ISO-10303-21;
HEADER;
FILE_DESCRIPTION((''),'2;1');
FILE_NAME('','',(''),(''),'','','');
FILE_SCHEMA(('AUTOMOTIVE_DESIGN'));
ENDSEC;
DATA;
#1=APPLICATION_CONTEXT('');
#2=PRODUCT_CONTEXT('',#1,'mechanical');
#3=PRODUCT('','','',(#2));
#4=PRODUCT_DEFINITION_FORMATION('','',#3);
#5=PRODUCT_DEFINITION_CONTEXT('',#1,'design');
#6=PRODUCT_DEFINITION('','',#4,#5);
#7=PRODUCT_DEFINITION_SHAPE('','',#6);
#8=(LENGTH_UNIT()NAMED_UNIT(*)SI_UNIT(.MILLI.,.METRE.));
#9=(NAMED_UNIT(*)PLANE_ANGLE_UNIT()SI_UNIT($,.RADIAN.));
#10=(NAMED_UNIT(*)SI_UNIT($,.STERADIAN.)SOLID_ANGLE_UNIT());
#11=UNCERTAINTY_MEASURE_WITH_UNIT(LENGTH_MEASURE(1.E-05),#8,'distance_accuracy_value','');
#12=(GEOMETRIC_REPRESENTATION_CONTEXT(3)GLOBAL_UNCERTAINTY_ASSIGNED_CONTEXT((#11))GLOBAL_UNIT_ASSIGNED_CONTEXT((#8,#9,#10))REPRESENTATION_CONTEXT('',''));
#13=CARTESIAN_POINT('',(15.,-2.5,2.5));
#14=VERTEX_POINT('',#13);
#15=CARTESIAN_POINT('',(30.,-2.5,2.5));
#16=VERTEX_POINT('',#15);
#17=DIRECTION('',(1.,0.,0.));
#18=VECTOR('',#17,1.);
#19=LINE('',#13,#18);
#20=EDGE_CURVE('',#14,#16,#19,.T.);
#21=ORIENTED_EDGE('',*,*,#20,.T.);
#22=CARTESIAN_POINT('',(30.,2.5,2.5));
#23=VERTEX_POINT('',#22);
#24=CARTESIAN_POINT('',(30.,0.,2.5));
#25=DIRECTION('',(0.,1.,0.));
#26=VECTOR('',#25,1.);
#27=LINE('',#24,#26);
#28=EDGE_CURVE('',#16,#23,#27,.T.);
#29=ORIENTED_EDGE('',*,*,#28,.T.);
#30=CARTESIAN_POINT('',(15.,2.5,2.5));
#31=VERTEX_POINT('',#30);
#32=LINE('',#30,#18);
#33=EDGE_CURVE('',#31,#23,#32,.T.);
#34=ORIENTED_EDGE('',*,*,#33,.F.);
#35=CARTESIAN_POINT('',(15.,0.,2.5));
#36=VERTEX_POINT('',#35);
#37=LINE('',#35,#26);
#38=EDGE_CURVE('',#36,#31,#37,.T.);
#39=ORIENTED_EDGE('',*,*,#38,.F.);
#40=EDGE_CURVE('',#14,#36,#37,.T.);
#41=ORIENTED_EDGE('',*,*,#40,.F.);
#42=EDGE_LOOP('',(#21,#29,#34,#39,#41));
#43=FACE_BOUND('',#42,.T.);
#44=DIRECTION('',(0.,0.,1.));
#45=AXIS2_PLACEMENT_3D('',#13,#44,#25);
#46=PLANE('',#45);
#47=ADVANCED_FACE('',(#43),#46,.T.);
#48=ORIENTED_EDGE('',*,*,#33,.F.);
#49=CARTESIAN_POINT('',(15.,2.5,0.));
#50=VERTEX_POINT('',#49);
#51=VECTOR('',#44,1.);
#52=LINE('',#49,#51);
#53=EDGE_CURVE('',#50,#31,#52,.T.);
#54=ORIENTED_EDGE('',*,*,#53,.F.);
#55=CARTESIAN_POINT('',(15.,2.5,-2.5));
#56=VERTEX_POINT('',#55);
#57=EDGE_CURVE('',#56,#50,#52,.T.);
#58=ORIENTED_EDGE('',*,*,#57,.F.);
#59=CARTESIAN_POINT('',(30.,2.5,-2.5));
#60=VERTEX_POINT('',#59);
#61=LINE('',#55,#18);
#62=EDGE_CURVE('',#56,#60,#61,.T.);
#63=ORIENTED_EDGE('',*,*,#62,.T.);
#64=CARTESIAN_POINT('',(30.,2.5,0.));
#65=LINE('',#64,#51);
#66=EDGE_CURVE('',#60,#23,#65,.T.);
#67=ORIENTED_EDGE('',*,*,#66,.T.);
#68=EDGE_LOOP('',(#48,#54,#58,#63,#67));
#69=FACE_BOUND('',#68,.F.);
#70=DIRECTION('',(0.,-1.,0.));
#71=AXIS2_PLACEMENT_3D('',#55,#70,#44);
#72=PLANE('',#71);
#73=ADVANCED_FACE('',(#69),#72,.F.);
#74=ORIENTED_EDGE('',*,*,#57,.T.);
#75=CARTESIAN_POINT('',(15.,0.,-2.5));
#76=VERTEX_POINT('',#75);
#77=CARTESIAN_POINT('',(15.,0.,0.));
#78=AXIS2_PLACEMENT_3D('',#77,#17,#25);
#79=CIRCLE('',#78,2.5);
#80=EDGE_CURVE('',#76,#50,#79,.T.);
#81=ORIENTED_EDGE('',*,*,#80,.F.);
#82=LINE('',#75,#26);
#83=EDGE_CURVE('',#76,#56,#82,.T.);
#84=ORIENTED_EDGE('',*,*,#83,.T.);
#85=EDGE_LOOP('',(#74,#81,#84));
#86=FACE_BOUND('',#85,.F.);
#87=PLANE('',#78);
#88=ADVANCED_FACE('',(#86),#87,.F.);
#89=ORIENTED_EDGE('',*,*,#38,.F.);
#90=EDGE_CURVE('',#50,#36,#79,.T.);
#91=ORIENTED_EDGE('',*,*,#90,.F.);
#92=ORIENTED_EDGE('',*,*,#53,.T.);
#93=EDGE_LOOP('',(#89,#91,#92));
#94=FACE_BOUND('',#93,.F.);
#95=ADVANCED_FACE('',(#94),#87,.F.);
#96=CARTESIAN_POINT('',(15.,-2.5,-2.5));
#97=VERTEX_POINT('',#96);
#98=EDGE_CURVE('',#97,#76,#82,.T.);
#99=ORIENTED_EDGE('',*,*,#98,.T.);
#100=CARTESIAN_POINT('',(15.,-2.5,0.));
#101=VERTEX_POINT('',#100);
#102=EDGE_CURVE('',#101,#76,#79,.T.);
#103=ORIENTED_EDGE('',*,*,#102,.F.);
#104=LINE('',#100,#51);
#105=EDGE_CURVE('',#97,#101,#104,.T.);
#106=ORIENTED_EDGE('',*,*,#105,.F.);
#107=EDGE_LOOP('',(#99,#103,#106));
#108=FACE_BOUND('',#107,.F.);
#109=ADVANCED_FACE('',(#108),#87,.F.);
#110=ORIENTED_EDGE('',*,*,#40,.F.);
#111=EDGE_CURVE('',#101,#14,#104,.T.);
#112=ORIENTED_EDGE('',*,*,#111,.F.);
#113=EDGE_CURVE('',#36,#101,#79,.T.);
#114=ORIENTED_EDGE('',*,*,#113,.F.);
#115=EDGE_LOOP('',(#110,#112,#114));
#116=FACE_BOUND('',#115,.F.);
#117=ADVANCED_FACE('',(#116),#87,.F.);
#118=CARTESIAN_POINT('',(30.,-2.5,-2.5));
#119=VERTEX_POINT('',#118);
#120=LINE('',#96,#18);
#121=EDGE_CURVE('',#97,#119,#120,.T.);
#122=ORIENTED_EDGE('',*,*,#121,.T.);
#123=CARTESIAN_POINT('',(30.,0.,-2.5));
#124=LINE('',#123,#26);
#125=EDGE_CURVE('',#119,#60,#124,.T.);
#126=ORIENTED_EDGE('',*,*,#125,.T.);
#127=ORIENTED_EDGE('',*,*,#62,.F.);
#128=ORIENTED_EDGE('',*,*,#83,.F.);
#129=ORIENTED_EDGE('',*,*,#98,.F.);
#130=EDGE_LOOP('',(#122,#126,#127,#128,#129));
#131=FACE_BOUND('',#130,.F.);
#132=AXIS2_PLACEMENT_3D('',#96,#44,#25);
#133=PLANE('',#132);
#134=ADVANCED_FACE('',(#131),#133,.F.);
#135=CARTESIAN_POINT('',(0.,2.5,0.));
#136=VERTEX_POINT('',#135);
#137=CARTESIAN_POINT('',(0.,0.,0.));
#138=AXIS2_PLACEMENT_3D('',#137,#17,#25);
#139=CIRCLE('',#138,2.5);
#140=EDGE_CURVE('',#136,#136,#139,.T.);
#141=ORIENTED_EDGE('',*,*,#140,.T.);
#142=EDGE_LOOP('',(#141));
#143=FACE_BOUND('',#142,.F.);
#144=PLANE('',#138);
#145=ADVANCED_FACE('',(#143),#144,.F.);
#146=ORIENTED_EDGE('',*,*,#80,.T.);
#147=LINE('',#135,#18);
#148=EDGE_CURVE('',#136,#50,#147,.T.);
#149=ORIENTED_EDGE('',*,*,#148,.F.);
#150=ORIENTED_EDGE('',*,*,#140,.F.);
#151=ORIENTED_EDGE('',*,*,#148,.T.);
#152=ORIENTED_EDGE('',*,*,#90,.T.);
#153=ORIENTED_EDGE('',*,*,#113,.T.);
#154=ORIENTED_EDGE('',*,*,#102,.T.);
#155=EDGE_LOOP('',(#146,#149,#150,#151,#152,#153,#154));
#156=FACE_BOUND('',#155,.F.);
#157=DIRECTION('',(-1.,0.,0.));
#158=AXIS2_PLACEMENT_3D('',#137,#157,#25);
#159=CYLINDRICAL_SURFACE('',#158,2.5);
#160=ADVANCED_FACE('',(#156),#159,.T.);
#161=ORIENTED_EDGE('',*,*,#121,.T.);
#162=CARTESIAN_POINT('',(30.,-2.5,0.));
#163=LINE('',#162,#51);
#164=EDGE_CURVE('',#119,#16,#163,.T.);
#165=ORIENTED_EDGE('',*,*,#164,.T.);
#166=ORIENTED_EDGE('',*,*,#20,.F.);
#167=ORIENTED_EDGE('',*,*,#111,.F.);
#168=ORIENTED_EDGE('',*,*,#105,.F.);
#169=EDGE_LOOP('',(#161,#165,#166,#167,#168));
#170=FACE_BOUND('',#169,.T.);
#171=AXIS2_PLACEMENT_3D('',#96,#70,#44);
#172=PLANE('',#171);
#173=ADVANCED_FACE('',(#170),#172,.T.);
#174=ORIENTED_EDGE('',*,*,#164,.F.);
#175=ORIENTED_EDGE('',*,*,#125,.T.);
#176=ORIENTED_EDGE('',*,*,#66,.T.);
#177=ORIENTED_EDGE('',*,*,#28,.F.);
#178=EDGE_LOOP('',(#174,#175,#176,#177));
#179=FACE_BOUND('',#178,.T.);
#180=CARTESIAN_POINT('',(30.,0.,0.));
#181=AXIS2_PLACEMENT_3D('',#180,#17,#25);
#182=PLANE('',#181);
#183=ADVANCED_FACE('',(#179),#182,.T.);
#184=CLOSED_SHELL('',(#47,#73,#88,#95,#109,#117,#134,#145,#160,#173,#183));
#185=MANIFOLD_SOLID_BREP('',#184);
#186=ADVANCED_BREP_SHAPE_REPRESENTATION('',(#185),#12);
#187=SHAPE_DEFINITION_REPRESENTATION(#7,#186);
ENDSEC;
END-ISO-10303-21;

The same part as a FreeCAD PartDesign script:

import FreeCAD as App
import Part
import Sketcher

V = App.Vector
Q = App.Units.Quantity

doc = App.newDocument("Part")
body = doc.addObject("PartDesign::Body", "Body")

sketch1 = body.newObject("Sketcher::SketchObject", "Sketch")
sketch1.AttachmentSupport = (doc.getObject("YZ_Plane"), [""])
sketch1.MapMode = "FlatFace"
sketch1.addGeometry(Part.Circle(V(0, 0, 0), V(0, 0, 1), 2.5), False)
sketch1.addConstraint([
    Sketcher.Constraint("Coincident", 0, 3, -1, 1),
    Sketcher.Constraint("Diameter", 0, Q("5 mm")),
])
pad1 = body.newObject("PartDesign::Pad", "Pad")
pad1.Profile = sketch1
pad1.Length = 15

sketch2 = body.newObject("Sketcher::SketchObject", "Sketch001")
sketch2.AttachmentSupport = (doc.getObject("YZ_Plane"), [""])
sketch2.MapMode = "FlatFace"
sketch2.AttachmentOffset = App.Placement(V(0, 0, 15), App.Rotation())
sketch2.addGeometry([
    Part.LineSegment(V(-2, 2, 0), V(-2, -2, 0)),
    Part.LineSegment(V(-2, -2, 0), V(2, -2, 0)),
    Part.LineSegment(V(2, -2, 0), V(2, 2, 0)),
    Part.LineSegment(V(2, 2, 0), V(-2, 2, 0)),
], False)
sketch2.addConstraint([
    Sketcher.Constraint("Coincident", 0, 2, 1, 1),
    Sketcher.Constraint("Coincident", 1, 2, 2, 1),
    Sketcher.Constraint("Coincident", 2, 2, 3, 1),
    Sketcher.Constraint("Coincident", 3, 2, 0, 1),
    Sketcher.Constraint("Vertical", 0),
    Sketcher.Constraint("Horizontal", 1),
    Sketcher.Constraint("Vertical", 2),
    Sketcher.Constraint("Horizontal", 3),
    Sketcher.Constraint("Symmetric", 0, 2, 2, 2, -1, 1),
    Sketcher.Constraint("Equal", 3, 0),
    Sketcher.Constraint("DistanceX", 1, 1, 1, 2, Q("5 mm")),
])
pad2 = body.newObject("PartDesign::Pad", "Pad001")
pad2.Profile = sketch2
pad2.Length = 15

doc.recompute()
